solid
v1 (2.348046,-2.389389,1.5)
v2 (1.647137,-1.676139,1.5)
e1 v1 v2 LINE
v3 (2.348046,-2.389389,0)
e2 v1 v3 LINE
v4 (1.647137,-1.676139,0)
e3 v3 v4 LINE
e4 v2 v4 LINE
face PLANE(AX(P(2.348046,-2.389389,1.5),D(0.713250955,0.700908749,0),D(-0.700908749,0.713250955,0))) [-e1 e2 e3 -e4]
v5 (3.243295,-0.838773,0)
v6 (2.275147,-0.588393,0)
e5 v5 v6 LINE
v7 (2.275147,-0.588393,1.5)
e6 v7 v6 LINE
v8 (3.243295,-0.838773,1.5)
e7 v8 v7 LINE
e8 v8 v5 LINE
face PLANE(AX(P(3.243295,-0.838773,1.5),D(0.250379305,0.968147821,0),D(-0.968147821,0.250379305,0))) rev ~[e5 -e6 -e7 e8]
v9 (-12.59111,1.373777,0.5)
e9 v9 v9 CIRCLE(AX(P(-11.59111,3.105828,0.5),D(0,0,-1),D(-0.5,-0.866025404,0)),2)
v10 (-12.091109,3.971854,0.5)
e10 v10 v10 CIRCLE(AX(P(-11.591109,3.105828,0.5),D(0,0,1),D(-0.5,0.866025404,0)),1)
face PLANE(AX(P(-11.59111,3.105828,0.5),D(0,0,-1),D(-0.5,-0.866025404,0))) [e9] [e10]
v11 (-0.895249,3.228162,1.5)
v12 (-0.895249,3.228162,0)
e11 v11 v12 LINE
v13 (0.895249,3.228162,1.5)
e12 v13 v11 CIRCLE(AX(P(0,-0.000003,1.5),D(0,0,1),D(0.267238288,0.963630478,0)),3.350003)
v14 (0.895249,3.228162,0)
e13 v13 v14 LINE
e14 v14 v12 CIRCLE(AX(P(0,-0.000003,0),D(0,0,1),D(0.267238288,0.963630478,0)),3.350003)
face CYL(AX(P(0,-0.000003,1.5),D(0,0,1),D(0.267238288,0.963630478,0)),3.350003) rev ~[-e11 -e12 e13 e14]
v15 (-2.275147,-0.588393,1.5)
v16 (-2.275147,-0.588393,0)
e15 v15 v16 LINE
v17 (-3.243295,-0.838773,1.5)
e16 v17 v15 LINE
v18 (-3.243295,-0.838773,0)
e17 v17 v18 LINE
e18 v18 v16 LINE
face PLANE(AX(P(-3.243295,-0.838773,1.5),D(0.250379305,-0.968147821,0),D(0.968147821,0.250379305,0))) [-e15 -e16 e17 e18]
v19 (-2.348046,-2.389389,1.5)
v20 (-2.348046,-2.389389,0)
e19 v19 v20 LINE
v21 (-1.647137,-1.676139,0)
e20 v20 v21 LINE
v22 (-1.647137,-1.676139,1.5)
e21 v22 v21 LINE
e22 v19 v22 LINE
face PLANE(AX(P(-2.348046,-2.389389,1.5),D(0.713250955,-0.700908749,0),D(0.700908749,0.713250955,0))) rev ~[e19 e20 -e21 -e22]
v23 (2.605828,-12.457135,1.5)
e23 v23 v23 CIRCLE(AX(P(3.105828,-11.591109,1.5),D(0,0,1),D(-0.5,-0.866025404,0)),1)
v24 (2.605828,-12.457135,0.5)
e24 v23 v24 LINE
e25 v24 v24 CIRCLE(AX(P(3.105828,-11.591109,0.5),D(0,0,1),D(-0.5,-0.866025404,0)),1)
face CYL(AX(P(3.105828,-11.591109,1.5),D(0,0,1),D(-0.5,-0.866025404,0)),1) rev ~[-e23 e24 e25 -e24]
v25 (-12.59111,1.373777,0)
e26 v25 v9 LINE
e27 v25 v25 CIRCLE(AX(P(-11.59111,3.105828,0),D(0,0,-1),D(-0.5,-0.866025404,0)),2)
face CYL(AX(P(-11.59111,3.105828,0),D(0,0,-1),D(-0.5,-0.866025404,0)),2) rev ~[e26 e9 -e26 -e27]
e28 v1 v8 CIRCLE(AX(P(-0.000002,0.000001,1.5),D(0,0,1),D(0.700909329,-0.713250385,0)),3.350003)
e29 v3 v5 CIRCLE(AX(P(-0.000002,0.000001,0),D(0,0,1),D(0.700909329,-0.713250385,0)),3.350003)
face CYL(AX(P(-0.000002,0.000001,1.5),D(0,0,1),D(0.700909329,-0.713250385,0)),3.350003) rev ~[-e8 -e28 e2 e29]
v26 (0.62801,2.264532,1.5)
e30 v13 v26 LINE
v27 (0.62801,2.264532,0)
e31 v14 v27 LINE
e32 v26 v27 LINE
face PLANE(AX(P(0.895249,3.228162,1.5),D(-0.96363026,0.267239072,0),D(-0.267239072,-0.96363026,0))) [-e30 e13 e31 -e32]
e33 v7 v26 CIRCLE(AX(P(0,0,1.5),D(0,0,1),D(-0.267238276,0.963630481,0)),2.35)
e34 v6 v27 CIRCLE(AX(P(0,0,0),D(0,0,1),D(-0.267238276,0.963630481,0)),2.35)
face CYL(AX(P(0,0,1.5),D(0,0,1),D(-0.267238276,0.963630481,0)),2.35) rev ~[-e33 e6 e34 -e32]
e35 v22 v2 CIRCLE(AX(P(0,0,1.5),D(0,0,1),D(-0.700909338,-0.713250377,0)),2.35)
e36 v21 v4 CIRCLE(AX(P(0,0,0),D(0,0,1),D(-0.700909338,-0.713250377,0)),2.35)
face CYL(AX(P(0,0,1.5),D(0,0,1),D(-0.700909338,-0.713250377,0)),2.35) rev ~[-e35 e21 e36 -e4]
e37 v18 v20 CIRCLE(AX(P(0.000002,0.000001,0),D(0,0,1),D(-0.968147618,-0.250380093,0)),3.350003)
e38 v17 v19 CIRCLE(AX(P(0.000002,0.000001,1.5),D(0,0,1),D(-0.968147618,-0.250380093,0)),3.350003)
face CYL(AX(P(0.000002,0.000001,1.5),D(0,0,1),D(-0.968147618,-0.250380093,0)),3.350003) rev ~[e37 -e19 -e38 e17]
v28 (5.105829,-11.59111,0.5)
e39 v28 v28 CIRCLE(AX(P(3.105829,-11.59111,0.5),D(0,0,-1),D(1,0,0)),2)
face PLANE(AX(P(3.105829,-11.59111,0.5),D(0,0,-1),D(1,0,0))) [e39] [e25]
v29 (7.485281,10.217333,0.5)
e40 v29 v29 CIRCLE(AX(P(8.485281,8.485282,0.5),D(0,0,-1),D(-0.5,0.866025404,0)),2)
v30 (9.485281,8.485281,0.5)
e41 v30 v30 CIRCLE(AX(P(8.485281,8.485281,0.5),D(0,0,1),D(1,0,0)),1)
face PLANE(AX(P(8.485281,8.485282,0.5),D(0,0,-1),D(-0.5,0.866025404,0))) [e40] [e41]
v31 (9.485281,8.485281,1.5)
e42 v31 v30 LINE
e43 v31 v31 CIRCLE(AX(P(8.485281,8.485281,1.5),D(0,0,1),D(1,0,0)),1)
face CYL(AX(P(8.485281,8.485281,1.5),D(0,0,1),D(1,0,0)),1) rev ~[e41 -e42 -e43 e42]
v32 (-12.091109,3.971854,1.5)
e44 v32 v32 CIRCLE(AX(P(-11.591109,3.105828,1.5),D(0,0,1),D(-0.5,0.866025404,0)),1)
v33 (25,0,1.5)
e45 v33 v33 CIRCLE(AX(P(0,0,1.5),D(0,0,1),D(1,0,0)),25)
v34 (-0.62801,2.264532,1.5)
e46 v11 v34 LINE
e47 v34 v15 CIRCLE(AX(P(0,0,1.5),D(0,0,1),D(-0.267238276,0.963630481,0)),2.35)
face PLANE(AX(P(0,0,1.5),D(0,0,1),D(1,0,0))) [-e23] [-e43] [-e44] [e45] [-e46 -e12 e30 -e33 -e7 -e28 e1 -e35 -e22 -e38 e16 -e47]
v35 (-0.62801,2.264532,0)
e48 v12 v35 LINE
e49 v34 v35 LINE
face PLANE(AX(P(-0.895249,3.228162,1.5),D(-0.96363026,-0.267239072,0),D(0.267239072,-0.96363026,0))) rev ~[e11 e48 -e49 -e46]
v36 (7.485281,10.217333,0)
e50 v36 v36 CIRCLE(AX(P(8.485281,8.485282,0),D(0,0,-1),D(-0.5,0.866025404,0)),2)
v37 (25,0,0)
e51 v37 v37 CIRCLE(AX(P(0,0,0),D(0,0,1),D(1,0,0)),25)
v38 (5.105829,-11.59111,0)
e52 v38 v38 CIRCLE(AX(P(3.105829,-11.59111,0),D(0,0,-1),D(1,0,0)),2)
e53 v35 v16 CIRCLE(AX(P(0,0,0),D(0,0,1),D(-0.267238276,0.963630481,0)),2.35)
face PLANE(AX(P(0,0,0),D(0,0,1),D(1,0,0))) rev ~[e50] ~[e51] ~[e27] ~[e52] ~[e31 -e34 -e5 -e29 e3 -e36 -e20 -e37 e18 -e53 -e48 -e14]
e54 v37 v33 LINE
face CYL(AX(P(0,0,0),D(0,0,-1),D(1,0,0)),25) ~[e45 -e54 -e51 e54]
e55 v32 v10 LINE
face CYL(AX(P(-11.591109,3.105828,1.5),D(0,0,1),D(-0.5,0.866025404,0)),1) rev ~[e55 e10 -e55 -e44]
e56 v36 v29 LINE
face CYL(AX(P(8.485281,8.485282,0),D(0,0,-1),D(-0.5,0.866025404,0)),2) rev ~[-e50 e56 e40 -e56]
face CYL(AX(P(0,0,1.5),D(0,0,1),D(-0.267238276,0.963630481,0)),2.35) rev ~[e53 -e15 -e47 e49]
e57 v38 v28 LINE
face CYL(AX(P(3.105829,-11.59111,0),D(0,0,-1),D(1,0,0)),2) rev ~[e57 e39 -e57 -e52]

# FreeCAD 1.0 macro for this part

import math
import FreeCAD as App
import Part
import Sketcher

V = App.Vector

doc = App.newDocument("Part")
body = doc.addObject("PartDesign::Body", "Body")

sketch1 = body.newObject("Sketcher::SketchObject", "Sketch")
sketch1.AttachmentSupport = (doc.getObject("XY_Plane"), [""])
sketch1.MapMode = "FlatFace"
sketch1.addGeometry(Part.Circle(V(0, 0, 0), V(0, 0, 1), 25), False)
sketch1.addConstraint(Sketcher.Constraint("Coincident", 0, 3, -1, 1))
sketch1.addConstraint(Sketcher.Constraint("Diameter", 0, 50.0))
pad1 = body.newObject("PartDesign::Pad", "Pad")
pad1.Profile = sketch1
pad1.Length = 1.5

sketch2 = body.newObject("Sketcher::SketchObject", "Sketch001")
sketch2.AttachmentSupport = (doc.getObject("XY_Plane"), [""])
sketch2.MapMode = "FlatFace"
sketch2.AttachmentOffset = App.Placement(V(0, 0, 1.5), App.Rotation())
sketch2.addGeometry(Part.ArcOfCircle(Part.Circle(V(0, 0, 0), V(0, 0, 1), 2.4), math.radians(105), math.radians(435)), False)
sketch2.addGeometry(Part.LineSegment(V(0.6, 2.3, 0), V(0.9, 3.2, 0)), False)
sketch2.addGeometry(Part.ArcOfCircle(Part.Circle(V(0, 0, 0), V(0, 0, 1), 3.4), math.radians(75), math.radians(105)), False)
sketch2.addGeometry(Part.LineSegment(V(-0.9, 3.2, 0), V(-0.6, 2.3, 0)), False)
sketch2.addConstraint(Sketcher.Constraint("Coincident", 0, 2, 1, 1))
sketch2.addConstraint(Sketcher.Constraint("Coincident", 1, 2, 2, 1))
sketch2.addConstraint(Sketcher.Constraint("Coincident", 2, 2, 3, 1))
sketch2.addConstraint(Sketcher.Constraint("Coincident", 3, 2, 0, 1))
sketch2.addConstraint(Sketcher.Constraint("Coincident", 0, 3, -1, 1))
sketch2.addConstraint(Sketcher.Constraint("Coincident", 2, 3, -1, 1))
sketch2.addConstraint(Sketcher.Constraint("Horizontal", 1, 2, 2, 2))
sketch2.addConstraint(Sketcher.Constraint("Horizontal", 0, 2, 3, 2))
sketch2.addConstraint(Sketcher.Constraint("Radius", 0, 2.35))
sketch2.addConstraint(Sketcher.Constraint("Distance", 1, 1.0))
sketch2.addConstraint(Sketcher.Constraint("DistanceX", 2, 2, 1, 2, 1.790498))
sketch2.addConstraint(Sketcher.Constraint("DistanceX", -1, 1, 0, 2, 0.62801))
pocket1 = body.newObject("PartDesign::Pocket", "Pocket")
pocket1.Profile = sketch2
pocket1.Length = 1.5
doc.recompute()

polarpattern = body.newObject("PartDesign::PolarPattern", "PolarPattern")
polarpattern.Originals = [pocket1]
polarpattern.Axis = (doc.getObject("Z_Axis"), [""])
polarpattern.Angle = 360
polarpattern.Occurrences = 3
body.Tip = polarpattern

sketch3 = body.newObject("Sketcher::SketchObject", "Sketch002")
sketch3.AttachmentSupport = (doc.getObject("XY_Plane"), [""])
sketch3.MapMode = "FlatFace"
sketch3.AttachmentOffset = App.Placement(V(0, 0, 1.5), App.Rotation())
sketch3.addGeometry(Part.Circle(V(8.5, 8.5, 0), V(0, 0, 1), 1), False)
sketch3.addConstraint(Sketcher.Constraint("Diameter", 0, 2.0))
sketch3.addConstraint(Sketcher.Constraint("DistanceX", -1, 1, 0, 3, 8.485281))
sketch3.addConstraint(Sketcher.Constraint("DistanceY", -1, 1, 0, 3, 8.485281))
pocket2 = body.newObject("PartDesign::Pocket", "Pocket001")
pocket2.Profile = sketch3
pocket2.Length = 5
doc.recompute()

polarpattern2 = body.newObject("PartDesign::PolarPattern", "PolarPattern001")
polarpattern2.Originals = [pocket2]
polarpattern2.Axis = (doc.getObject("Z_Axis"), [""])
polarpattern2.Angle = 360
polarpattern2.Occurrences = 3
body.Tip = polarpattern2

sketch4 = body.newObject("Sketcher::SketchObject", "Sketch003")
sketch4.AttachmentSupport = (doc.getObject("XY_Plane"), [""])
sketch4.MapMode = "FlatFace"
sketch4.addGeometry(Part.Circle(V(3.1, -11.6, 0), V(0, 0, 1), 2), False)
sketch4.addConstraint(Sketcher.Constraint("Diameter", 0, 4.0))
sketch4.addConstraint(Sketcher.Constraint("DistanceX", -1, 1, 0, 3, 3.105829))
sketch4.addConstraint(Sketcher.Constraint("DistanceY", 0, 3, -1, 1, 11.59111))
pocket3 = body.newObject("PartDesign::Pocket", "Pocket002")
pocket3.Profile = sketch4
pocket3.Length = 0.5
pocket3.Reversed = True
doc.recompute()

polarpattern3 = body.newObject("PartDesign::PolarPattern", "PolarPattern002")
polarpattern3.Originals = [pocket3]
polarpattern3.Axis = (doc.getObject("Z_Axis"), [""])
polarpattern3.Angle = 360
polarpattern3.Occurrences = 3
body.Tip = polarpattern3

doc.recompute()
